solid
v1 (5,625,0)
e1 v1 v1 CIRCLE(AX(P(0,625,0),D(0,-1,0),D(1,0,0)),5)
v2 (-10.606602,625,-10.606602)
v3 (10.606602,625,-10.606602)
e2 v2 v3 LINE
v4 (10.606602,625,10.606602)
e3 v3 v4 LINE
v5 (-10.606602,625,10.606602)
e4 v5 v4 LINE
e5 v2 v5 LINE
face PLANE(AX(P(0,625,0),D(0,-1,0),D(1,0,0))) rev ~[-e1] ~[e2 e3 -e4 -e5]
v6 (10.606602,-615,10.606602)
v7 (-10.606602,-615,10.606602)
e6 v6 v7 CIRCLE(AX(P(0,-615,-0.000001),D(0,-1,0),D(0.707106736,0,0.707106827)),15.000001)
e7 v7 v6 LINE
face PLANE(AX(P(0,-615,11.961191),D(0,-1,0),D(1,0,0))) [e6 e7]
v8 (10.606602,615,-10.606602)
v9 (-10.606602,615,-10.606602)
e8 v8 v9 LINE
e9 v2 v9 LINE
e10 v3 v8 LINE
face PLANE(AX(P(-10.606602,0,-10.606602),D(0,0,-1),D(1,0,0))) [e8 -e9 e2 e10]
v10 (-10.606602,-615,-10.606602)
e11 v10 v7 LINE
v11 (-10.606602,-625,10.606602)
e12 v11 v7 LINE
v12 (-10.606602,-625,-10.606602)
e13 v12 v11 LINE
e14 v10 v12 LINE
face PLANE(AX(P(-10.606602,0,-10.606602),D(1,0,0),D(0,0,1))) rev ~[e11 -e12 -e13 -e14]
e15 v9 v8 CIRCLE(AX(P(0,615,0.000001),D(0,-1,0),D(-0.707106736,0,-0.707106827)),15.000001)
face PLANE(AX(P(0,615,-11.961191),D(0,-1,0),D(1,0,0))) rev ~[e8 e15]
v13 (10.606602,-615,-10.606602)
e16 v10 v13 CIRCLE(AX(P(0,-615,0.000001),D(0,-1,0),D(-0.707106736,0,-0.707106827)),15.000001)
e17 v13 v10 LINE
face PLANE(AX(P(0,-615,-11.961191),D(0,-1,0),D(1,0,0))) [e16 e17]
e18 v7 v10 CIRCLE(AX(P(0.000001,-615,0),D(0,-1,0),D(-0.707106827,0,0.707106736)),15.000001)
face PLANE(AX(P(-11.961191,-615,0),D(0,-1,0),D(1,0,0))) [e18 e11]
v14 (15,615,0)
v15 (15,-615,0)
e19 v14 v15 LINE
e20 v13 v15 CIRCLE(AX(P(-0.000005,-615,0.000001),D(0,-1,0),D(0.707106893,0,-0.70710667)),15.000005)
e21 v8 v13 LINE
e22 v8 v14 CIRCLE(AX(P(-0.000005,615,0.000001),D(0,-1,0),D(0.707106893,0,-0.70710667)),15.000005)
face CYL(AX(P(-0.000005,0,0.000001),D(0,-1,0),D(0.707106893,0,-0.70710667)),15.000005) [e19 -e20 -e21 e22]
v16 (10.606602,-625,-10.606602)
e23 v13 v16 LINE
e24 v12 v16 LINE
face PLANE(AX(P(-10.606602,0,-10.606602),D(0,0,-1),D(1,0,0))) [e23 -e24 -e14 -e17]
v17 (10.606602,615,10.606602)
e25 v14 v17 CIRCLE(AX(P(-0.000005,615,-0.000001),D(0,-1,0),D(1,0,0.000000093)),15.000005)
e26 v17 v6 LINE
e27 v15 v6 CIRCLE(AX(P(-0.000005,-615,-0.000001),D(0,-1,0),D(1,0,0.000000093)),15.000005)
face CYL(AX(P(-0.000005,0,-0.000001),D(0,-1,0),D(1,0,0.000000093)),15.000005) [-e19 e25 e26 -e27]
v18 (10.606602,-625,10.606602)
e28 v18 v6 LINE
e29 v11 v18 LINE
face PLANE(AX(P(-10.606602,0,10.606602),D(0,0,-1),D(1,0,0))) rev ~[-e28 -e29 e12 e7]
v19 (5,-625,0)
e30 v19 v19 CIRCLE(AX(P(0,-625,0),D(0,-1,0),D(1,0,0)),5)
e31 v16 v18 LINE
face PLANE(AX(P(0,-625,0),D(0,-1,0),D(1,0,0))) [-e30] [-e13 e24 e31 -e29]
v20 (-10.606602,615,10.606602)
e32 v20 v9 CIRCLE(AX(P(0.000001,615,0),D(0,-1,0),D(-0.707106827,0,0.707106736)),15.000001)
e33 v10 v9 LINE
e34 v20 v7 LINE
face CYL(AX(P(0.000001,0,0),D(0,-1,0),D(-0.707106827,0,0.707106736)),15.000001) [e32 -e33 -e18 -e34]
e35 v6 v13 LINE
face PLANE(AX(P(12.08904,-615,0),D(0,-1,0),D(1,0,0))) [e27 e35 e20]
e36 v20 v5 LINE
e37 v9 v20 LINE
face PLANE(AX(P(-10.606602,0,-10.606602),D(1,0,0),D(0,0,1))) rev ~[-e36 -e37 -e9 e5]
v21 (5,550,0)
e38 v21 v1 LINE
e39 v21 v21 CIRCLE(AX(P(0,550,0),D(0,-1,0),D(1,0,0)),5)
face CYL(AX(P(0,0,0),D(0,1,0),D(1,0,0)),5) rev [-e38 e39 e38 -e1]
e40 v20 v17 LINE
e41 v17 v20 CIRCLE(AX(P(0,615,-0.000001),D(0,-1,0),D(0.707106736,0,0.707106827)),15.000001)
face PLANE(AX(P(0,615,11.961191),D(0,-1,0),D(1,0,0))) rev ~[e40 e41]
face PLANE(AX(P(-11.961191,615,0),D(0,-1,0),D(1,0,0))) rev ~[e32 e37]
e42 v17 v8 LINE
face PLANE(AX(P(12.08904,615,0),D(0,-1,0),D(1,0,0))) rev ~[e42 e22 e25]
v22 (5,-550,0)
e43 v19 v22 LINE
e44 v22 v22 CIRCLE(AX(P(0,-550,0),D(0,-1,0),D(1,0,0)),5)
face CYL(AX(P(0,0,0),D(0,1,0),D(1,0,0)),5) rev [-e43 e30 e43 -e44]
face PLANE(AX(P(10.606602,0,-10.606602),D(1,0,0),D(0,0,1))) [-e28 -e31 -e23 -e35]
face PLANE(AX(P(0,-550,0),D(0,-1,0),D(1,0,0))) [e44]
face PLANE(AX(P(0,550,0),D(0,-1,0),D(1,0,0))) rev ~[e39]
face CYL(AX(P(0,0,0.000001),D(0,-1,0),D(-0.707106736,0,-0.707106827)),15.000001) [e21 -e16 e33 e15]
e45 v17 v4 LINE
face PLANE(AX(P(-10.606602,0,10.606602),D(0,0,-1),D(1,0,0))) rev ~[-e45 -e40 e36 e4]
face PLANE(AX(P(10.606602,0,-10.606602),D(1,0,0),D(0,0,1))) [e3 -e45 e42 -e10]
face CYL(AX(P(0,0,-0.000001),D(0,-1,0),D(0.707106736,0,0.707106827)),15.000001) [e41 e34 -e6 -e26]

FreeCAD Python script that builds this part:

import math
import FreeCAD as App
import Part
import Sketcher
Q = App.Units.Quantity

doc = App.newDocument("Part")
params = doc.addObject("Spreadsheet::Sheet", "Params")
for row, (alias, value) in enumerate([
    ("sketch1_diameter", "10 mm"),
    ("pad1_length", "1250 mm"),
    ("sketch2_radius", "15.000001 mm"),
    ("pad2_length", "1230 mm"),
    ("sketch3_diameter", "10 mm"),
    ("pad3_length", "1100 mm"),
], start=1):
    params.set(f"A{row}", alias)
    params.set(f"B{row}", "=" + value)
    params.setAlias(f"B{row}", alias)

body = doc.addObject("PartDesign::Body", "Body")

# Sketch on XZ plane
sketch1 = doc.addObject("Sketcher::SketchObject", "Sketch")
body.addObject(sketch1)
sketch1.AttachmentSupport = (doc.XZ_Plane, [""])
sketch1.MapMode = "FlatFace"
sketch1.addGeometry([
    Part.LineSegment(App.Vector(-11, 11, 0), App.Vector(-11, -11, 0)),  # 0
    Part.LineSegment(App.Vector(-11, -11, 0), App.Vector(11, -11, 0)),  # 1
    Part.LineSegment(App.Vector(11, -11, 0), App.Vector(11, 11, 0)),  # 2
    Part.LineSegment(App.Vector(11, 11, 0), App.Vector(-11, 11, 0)),  # 3
    Part.Circle(App.Vector(0, 0, 0), App.Vector(0, 0, 1), 5),  # 4
], False)
sketch1.addConstraint([
    Sketcher.Constraint("Coincident", 0, 2, 1, 1),
    Sketcher.Constraint("Coincident", 1, 2, 2, 1),
    Sketcher.Constraint("Coincident", 2, 2, 3, 1),
    Sketcher.Constraint("Coincident", 3, 2, 0, 1),
    Sketcher.Constraint("Vertical", 0),
    Sketcher.Constraint("Horizontal", 1),
    Sketcher.Constraint("Vertical", 2),
    Sketcher.Constraint("Horizontal", 3),
    Sketcher.Constraint("Coincident", 4, 3, -1, 1),
    Sketcher.Constraint("Symmetric", 0, 2, 2, 2, -1, 1),
    Sketcher.Constraint("Equal", 3, 0),
    Sketcher.Constraint("Diameter", 4, Q("10 mm")),
    Sketcher.Constraint("DistanceX", 1, 1, 1, 2, Q("21.213204 mm")),
])
sketch1.setExpression("Constraints[11]", "Params.sketch1_diameter")
pad1 = doc.addObject("PartDesign::Pad", "Pad")
body.addObject(pad1)
pad1.Profile = sketch1
pad1.setExpression("Length", "Params.pad1_length")
pad1.Midplane = True

# Sketch on XZ plane
sketch2 = doc.addObject("Sketcher::SketchObject", "Sketch001")
body.addObject(sketch2)
sketch2.AttachmentSupport = (doc.XZ_Plane, [""])
sketch2.MapMode = "FlatFace"
sketch2.addGeometry([
    Part.LineSegment(App.Vector(-11, 11, 0), App.Vector(11, 11, 0)),  # 0
    Part.ArcOfCircle(Part.Circle(App.Vector(0, 0, 0), App.Vector(0, 0, 1), 15), math.radians(45), math.radians(135)),  # 1
    Part.ArcOfCircle(Part.Circle(App.Vector(0, 0, 0), App.Vector(0, 0, 1), 15), math.radians(-45), math.radians(0)),  # 2
    Part.ArcOfCircle(Part.Circle(App.Vector(0, 0, 0), App.Vector(0, 0, 1), 15), math.radians(0), math.radians(45)),  # 3
    Part.LineSegment(App.Vector(11, 11, 0), App.Vector(11, -11, 0)),  # 4
    Part.ArcOfCircle(Part.Circle(App.Vector(0, 0, 0), App.Vector(0, 0, 1), 15), math.radians(-135), math.radians(-45)),  # 5
    Part.LineSegment(App.Vector(11, -11, 0), App.Vector(-11, -11, 0)),  # 6
    Part.LineSegment(App.Vector(-11, -11, 0), App.Vector(-11, 11, 0)),  # 7
    Part.ArcOfCircle(Part.Circle(App.Vector(0, 0, 0), App.Vector(0, 0, 1), 15), math.radians(135), math.radians(225)),  # 8
], False)
sketch2.addConstraint([
    Sketcher.Constraint("Coincident", 0, 1, 1, 2),
    Sketcher.Constraint("Coincident", 1, 1, 0, 2),
    Sketcher.Constraint("Tangent", 2, 2, 3, 1),
    Sketcher.Constraint("Coincident", 3, 2, 4, 1),
    Sketcher.Constraint("Coincident", 4, 2, 2, 1),
    Sketcher.Constraint("Coincident", 5, 1, 6, 2),
    Sketcher.Constraint("Coincident", 6, 1, 5, 2),
    Sketcher.Constraint("Coincident", 7, 1, 8, 2),
    Sketcher.Constraint("Coincident", 8, 1, 7, 2),
    Sketcher.Constraint("Horizontal", 0),
    Sketcher.Constraint("Vertical", 4),
    Sketcher.Constraint("Horizontal", 6),
    Sketcher.Constraint("Vertical", 7),
    Sketcher.Constraint("Coincident", 1, 3, -1, 1),
    Sketcher.Constraint("Coincident", 2, 3, -1, 1),
    Sketcher.Constraint("Coincident", 5, 3, -1, 1),
    Sketcher.Constraint("Coincident", 8, 3, -1, 1),
    Sketcher.Constraint("Coincident", 3, 2, 1, 1),
    Sketcher.Constraint("Coincident", 6, 1, 4, 2),
    Sketcher.Constraint("Coincident", 7, 1, 5, 1),
    Sketcher.Constraint("Equal", 2, 3),
    Sketcher.Constraint("PointOnObject", 2, 2, -1),
    Sketcher.Constraint("Equal", 6, 4),
    Sketcher.Constraint("Radius", 1, Q("15.000001 mm")),
])
sketch2.setExpression("Constraints[23]", "Params.sketch2_radius")
pad2 = doc.addObject("PartDesign::Pad", "Pad001")
body.addObject(pad2)
pad2.Profile = sketch2
pad2.setExpression("Length", "Params.pad2_length")
pad2.Midplane = True

# Sketch on XZ plane
sketch3 = doc.addObject("Sketcher::SketchObject", "Sketch002")
body.addObject(sketch3)
sketch3.AttachmentSupport = (doc.XZ_Plane, [""])
sketch3.MapMode = "FlatFace"
sketch3.addGeometry(Part.Circle(App.Vector(0, 0, 0), App.Vector(0, 0, 1), 5), False)
sketch3.addConstraint([
    Sketcher.Constraint("Coincident", 0, 3, -1, 1),
    Sketcher.Constraint("Diameter", 0, Q("10 mm")),
])
sketch3.setExpression("Constraints[1]", "Params.sketch3_diameter")
pad3 = doc.addObject("PartDesign::Pad", "Pad002")
body.addObject(pad3)
pad3.Profile = sketch3
pad3.setExpression("Length", "Params.pad3_length")
pad3.Midplane = True

doc.recompute()
